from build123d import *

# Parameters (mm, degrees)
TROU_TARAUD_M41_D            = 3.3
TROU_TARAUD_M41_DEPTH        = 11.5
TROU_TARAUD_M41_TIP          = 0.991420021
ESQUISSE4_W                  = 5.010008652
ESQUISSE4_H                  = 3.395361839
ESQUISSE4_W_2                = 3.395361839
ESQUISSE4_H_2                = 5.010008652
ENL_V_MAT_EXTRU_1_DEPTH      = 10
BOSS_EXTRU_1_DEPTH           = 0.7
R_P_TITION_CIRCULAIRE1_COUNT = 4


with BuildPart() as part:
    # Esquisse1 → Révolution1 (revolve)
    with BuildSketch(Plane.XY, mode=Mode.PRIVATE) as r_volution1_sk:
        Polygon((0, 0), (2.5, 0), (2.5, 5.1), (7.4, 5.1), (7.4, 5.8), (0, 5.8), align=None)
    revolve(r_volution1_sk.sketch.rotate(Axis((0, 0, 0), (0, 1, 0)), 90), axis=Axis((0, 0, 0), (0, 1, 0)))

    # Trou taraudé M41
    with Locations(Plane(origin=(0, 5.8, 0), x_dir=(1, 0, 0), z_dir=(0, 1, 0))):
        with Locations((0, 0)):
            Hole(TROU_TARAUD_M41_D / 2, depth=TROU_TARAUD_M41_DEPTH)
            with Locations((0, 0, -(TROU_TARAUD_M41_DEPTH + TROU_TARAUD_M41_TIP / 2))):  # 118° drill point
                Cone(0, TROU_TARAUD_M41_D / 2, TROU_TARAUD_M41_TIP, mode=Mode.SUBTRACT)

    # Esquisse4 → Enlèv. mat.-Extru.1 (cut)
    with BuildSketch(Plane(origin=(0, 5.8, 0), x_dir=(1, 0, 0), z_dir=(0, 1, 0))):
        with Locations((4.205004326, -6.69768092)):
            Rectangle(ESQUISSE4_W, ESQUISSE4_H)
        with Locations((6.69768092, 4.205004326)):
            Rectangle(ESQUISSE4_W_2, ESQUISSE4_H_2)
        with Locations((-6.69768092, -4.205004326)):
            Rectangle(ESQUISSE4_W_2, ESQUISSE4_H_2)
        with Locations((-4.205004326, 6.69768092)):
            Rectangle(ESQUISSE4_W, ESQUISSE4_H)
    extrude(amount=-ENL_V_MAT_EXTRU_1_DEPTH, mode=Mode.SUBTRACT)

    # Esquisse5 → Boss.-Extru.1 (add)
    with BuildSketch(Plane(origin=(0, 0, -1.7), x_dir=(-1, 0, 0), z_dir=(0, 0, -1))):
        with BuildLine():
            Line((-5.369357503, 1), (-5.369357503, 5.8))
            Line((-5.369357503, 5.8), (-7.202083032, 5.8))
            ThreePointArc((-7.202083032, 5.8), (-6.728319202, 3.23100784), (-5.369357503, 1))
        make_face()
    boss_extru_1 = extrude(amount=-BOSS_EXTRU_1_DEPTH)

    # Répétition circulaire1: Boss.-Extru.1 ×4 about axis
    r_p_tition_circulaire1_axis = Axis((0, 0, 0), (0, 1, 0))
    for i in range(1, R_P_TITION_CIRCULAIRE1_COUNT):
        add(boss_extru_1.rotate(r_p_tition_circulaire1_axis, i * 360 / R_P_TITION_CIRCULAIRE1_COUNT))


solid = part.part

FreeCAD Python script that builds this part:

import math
import FreeCAD as App
import Part
import Sketcher

doc = App.newDocument("Part")
body = doc.addObject("PartDesign::Body", "Body")

sketch1 = doc.addObject("Sketcher::SketchObject", "Sketch")
body.addObject(sketch1)
sketch1.AttachmentSupport = (doc.XY_Plane, [""])
sketch1.MapMode = "FlatFace"
sketch1.addGeometry(Part.LineSegment(App.Vector(0, 0, 0), App.Vector(2.5, 0, 0)), False)
sketch1.addGeometry(Part.LineSegment(App.Vector(2.5, 0, 0), App.Vector(2.5, 5.1, 0)), False)
sketch1.addGeometry(Part.LineSegment(App.Vector(2.5, 5.1, 0), App.Vector(7.4, 5.1, 0)), False)
sketch1.addGeometry(Part.LineSegment(App.Vector(7.4, 5.1, 0), App.Vector(7.4, 5.8, 0)), False)
sketch1.addGeometry(Part.LineSegment(App.Vector(7.4, 5.8, 0), App.Vector(0, 5.8, 0)), False)
sketch1.addGeometry(Part.LineSegment(App.Vector(0, 5.8, 0), App.Vector(0, 0, 0)), False)
sketch1.addConstraint(Sketcher.Constraint("Coincident", 0, 2, 1, 1))
sketch1.addConstraint(Sketcher.Constraint("Coincident", 1, 2, 2, 1))
sketch1.addConstraint(Sketcher.Constraint("Coincident", 2, 2, 3, 1))
sketch1.addConstraint(Sketcher.Constraint("Coincident", 3, 2, 4, 1))
sketch1.addConstraint(Sketcher.Constraint("Coincident", 4, 2, 5, 1))
sketch1.addConstraint(Sketcher.Constraint("Coincident", 5, 2, 0, 1))
sketch1.addConstraint(Sketcher.Constraint("Horizontal", 0))
sketch1.addConstraint(Sketcher.Constraint("Vertical", 1))
sketch1.addConstraint(Sketcher.Constraint("Horizontal", 2))
sketch1.addConstraint(Sketcher.Constraint("Vertical", 3))
sketch1.addConstraint(Sketcher.Constraint("Horizontal", 4))
sketch1.addConstraint(Sketcher.Constraint("Vertical", 5))
sketch1.addConstraint(Sketcher.Constraint("Coincident", 5, 2, -1, 1))
sketch1.addConstraint(Sketcher.Constraint("DistanceX", 0, 1, 0, 2, 2.5))
sketch1.addConstraint(Sketcher.Constraint("DistanceX", 2, 1, 2, 2, 4.9))
sketch1.addConstraint(Sketcher.Constraint("DistanceY", 1, 1, 1, 2, 5.1))
sketch1.addConstraint(Sketcher.Constraint("DistanceY", 3, 1, 3, 2, 0.7))
revolution = doc.addObject("PartDesign::Revolution", "Revolution")
body.addObject(revolution)
revolution.Profile = sketch1
revolution.ReferenceAxis = (sketch1, ["V_Axis"])
revolution.Angle = 360

sketch2 = doc.addObject("Sketcher::SketchObject", "Sketch001")
body.addObject(sketch2)
sketch2.AttachmentSupport = (doc.XZ_Plane, [""])
sketch2.MapMode = "FlatFace"
sketch2.AttachmentOffset = App.Placement(App.Vector(0, 0, -5.8), App.Rotation())
sketch2.addGeometry(Part.Circle(App.Vector(0, 0, 0), App.Vector(0, 0, 1), 1.6), False)
sketch2.addConstraint(Sketcher.Constraint("Coincident", 0, 3, -1, 1))
sketch2.addConstraint(Sketcher.Constraint("Diameter", 0, 3.3))
doc.recompute()
hole = doc.addObject("PartDesign::Hole", "Hole")
body.addObject(hole)
hole.Profile = sketch2
hole.ThreadType = "None"
hole.Diameter = 3.3
hole.DepthType = "Dimension"
hole.Depth = 11.5
hole.DrillPoint = "Angled"
hole.DrillPointAngle = 118
hole.Reversed = True

sketch3 = doc.addObject("Sketcher::SketchObject", "Sketch002")
body.addObject(sketch3)
sketch3.AttachmentSupport = (doc.XZ_Plane, [""])
sketch3.MapMode = "FlatFace"
sketch3.AttachmentOffset = App.Placement(App.Vector(0, 0, -5.8), App.Rotation())
sketch3.addGeometry(Part.LineSegment(App.Vector(1.7, 5, 0), App.Vector(1.7, 8.4, 0)), False)
sketch3.addGeometry(Part.LineSegment(App.Vector(1.7, 8.4, 0), App.Vector(6.7, 8.4, 0)), False)
sketch3.addGeometry(Part.LineSegment(App.Vector(6.7, 8.4, 0), App.Vector(6.7, 5, 0)), False)
sketch3.addGeometry(Part.LineSegment(App.Vector(6.7, 5, 0), App.Vector(1.7, 5, 0)), False)
sketch3.addGeometry(Part.LineSegment(App.Vector(5, -6.7, 0), App.Vector(5, -1.7, 0)), False)
sketch3.addGeometry(Part.LineSegment(App.Vector(5, -1.7, 0), App.Vector(8.4, -1.7, 0)), False)
sketch3.addGeometry(Part.LineSegment(App.Vector(8.4, -1.7, 0), App.Vector(8.4, -6.7, 0)), False)
sketch3.addGeometry(Part.LineSegment(App.Vector(8.4, -6.7, 0), App.Vector(5, -6.7, 0)), False)
sketch3.addGeometry(Part.LineSegment(App.Vector(-8.4, 1.7, 0), App.Vector(-8.4, 6.7, 0)), False)
sketch3.addGeometry(Part.LineSegment(App.Vector(-8.4, 6.7, 0), App.Vector(-5, 6.7, 0)), False)
sketch3.addGeometry(Part.LineSegment(App.Vector(-5, 6.7, 0), App.Vector(-5, 1.7, 0)), False)
sketch3.addGeometry(Part.LineSegment(App.Vector(-5, 1.7, 0), App.Vector(-8.4, 1.7, 0)), False)
sketch3.addGeometry(Part.LineSegment(App.Vector(-6.7, -8.4, 0), App.Vector(-6.7, -5, 0)), False)
sketch3.addGeometry(Part.LineSegment(App.Vector(-6.7, -5, 0), App.Vector(-1.7, -5, 0)), False)
sketch3.addGeometry(Part.LineSegment(App.Vector(-1.7, -5, 0), App.Vector(-1.7, -8.4, 0)), False)
sketch3.addGeometry(Part.LineSegment(App.Vector(-1.7, -8.4, 0), App.Vector(-6.7, -8.4, 0)), False)
sketch3.addConstraint(Sketcher.Constraint("Coincident", 0, 2, 1, 1))
sketch3.addConstraint(Sketcher.Constraint("Coincident", 1, 2, 2, 1))
sketch3.addConstraint(Sketcher.Constraint("Coincident", 2, 2, 3, 1))
sketch3.addConstraint(Sketcher.Constraint("Coincident", 3, 2, 0, 1))
sketch3.addConstraint(Sketcher.Constraint("Coincident", 4, 2, 5, 1))
sketch3.addConstraint(Sketcher.Constraint("Coincident", 5, 2, 6, 1))
sketch3.addConstraint(Sketcher.Constraint("Coincident", 6, 2, 7, 1))
sketch3.addConstraint(Sketcher.Constraint("Coincident", 7, 2, 4, 1))
sketch3.addConstraint(Sketcher.Constraint("Coincident", 8, 2, 9, 1))
sketch3.addConstraint(Sketcher.Constraint("Coincident", 9, 2, 10, 1))
sketch3.addConstraint(Sketcher.Constraint("Coincident", 10, 2, 11, 1))
sketch3.addConstraint(Sketcher.Constraint("Coincident", 11, 2, 8, 1))
sketch3.addConstraint(Sketcher.Constraint("Coincident", 12, 2, 13, 1))
sketch3.addConstraint(Sketcher.Constraint("Coincident", 13, 2, 14, 1))
sketch3.addConstraint(Sketcher.Constraint("Coincident", 14, 2, 15, 1))
sketch3.addConstraint(Sketcher.Constraint("Coincident", 15, 2, 12, 1))
sketch3.addConstraint(Sketcher.Constraint("Vertical", 0))
sketch3.addConstraint(Sketcher.Constraint("Horizontal", 1))
sketch3.addConstraint(Sketcher.Constraint("Vertical", 2))
sketch3.addConstraint(Sketcher.Constraint("Horizontal", 3))
sketch3.addConstraint(Sketcher.Constraint("Vertical", 4))
sketch3.addConstraint(Sketcher.Constraint("Horizontal", 5))
sketch3.addConstraint(Sketcher.Constraint("Vertical", 6))
sketch3.addConstraint(Sketcher.Constraint("Horizontal", 7))
sketch3.addConstraint(Sketcher.Constraint("Vertical", 8))
sketch3.addConstraint(Sketcher.Constraint("Horizontal", 9))
sketch3.addConstraint(Sketcher.Constraint("Vertical", 10))
sketch3.addConstraint(Sketcher.Constraint("Horizontal", 11))
sketch3.addConstraint(Sketcher.Constraint("Vertical", 12))
sketch3.addConstraint(Sketcher.Constraint("Horizontal", 13))
sketch3.addConstraint(Sketcher.Constraint("Vertical", 14))
sketch3.addConstraint(Sketcher.Constraint("Horizontal", 15))
sketch3.addConstraint(Sketcher.Constraint("Symmetric", 6, 2, 8, 2, -1, 1))
sketch3.addConstraint(Sketcher.Constraint("Symmetric", 4, 2, 10, 2, -1, 1))
sketch3.addConstraint(Sketcher.Constraint("Symmetric", 2, 2, 12, 2, -1, 1))
sketch3.addConstraint(Sketcher.Constraint("Symmetric", 0, 2, 14, 2, -1, 1))
sketch3.addConstraint(Sketcher.Constraint("Equal", 11, 0))
sketch3.addConstraint(Sketcher.Constraint("Equal", 15, 4))
sketch3.addConstraint(Sketcher.Constraint("DistanceY", -1, 1, 2, 2, 5.0))
sketch3.addConstraint(Sketcher.Constraint("DistanceX", -1, 1, 4, 2, 5.0))
sketch3.addConstraint(Sketcher.Constraint("DistanceX", -1, 1, 0, 2, 1.7))
sketch3.addConstraint(Sketcher.Constraint("DistanceY", 4, 2, -1, 1, 1.7))
sketch3.addConstraint(Sketcher.Constraint("DistanceX", 1, 1, 1, 2, 5.010009))
sketch3.addConstraint(Sketcher.Constraint("DistanceX", 5, 1, 5, 2, 3.395362))
pocket1 = doc.addObject("PartDesign::Pocket", "Pocket")
body.addObject(pocket1)
pocket1.Profile = sketch3
pocket1.Length = 10
pocket1.Reversed = True

sketch4 = doc.addObject("Sketcher::SketchObject", "Sketch003")
body.addObject(sketch4)
sketch4.AttachmentSupport = (doc.XY_Plane, [""])
sketch4.MapMode = "FlatFace"
sketch4.AttachmentOffset = App.Placement(App.Vector(0, 0, -1.7), App.Rotation())
sketch4.addGeometry(Part.LineSegment(App.Vector(5.4, 1, 0), App.Vector(5.4, 5.8, 0)), False)
sketch4.addGeometry(Part.LineSegment(App.Vector(5.4, 5.8, 0), App.Vector(7.2, 5.8, 0)), False)
sketch4.addGeometry(Part.ArcOfCircle(Part.Circle(App.Vector(0, 5.8, 0), App.Vector(0, 0, 1), 7.2), math.radians(-42), math.radians(0)), False)
sketch4.addConstraint(Sketcher.Constraint("Coincident", 0, 2, 1, 1))
sketch4.addConstraint(Sketcher.Constraint("Coincident", 1, 2, 2, 2))
sketch4.addConstraint(Sketcher.Constraint("Coincident", 2, 1, 0, 1))
sketch4.addConstraint(Sketcher.Constraint("Vertical", 0))
sketch4.addConstraint(Sketcher.Constraint("Horizontal", 1))
sketch4.addConstraint(Sketcher.Constraint("PointOnObject", 2, 3, -2))
sketch4.addConstraint(Sketcher.Constraint("Horizontal", 2, 3, 0, 2))
sketch4.addConstraint(Sketcher.Constraint("DistanceY", 0, 1, 0, 2, 4.8))
sketch4.addConstraint(Sketcher.Constraint("DistanceY", -1, 1, 2, 1, 1.0))
sketch4.addConstraint(Sketcher.Constraint("Radius", 2, 7.202083))
pad1 = doc.addObject("PartDesign::Pad", "Pad")
body.addObject(pad1)
pad1.Profile = sketch4
pad1.Length = 0.7
doc.recompute()

polarpattern = doc.addObject("PartDesign::PolarPattern", "PolarPattern")
body.addObject(polarpattern)
polarpattern.Originals = [pad1]
polarpattern.Axis = (doc.Y_Axis, [""])
polarpattern.Angle = 360
polarpattern.Occurrences = 4
body.Tip = polarpattern

doc.recompute()
